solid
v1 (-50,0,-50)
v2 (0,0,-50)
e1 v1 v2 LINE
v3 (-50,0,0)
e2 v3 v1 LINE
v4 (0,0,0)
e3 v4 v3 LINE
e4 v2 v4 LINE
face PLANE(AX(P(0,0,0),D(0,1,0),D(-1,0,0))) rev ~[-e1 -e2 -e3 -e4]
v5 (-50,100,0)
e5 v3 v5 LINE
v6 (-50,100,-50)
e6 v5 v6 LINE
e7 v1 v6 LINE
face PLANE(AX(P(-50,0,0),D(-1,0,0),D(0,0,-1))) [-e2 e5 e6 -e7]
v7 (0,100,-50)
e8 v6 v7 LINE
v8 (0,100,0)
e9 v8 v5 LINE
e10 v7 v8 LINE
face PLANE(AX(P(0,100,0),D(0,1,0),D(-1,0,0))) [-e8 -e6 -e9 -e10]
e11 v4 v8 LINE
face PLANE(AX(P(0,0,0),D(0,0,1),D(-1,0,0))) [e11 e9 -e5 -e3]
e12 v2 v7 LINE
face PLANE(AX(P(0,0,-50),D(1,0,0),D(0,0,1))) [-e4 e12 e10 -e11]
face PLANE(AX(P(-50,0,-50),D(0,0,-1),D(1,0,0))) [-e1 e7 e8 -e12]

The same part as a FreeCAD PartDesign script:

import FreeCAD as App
import Part
import Sketcher
Q = App.Units.Quantity


def add_polygon(sketch, points):
    """Adds a closed chain of lines whose ends are joined by coincident constraints."""
    first, n = sketch.GeometryCount, len(points)
    for a, b in zip(points, points[1:] + points[:1]):
        sketch.addGeometry(Part.LineSegment(App.Vector(*a, 0), App.Vector(*b, 0)), False)
    for i in range(n):
        sketch.addConstraint(Sketcher.Constraint("Coincident", first + i, 2, first + (i + 1) % n, 1))

doc = App.newDocument("Part")
body = doc.addObject("PartDesign::Body", "Body")

# Sketch on XZ plane
sketch1 = body.newObject("Sketcher::SketchObject", "Sketch")
sketch1.AttachmentSupport = (doc.getObject("XZ_Plane"), [""])
sketch1.MapMode = "FlatFace"
add_polygon(sketch1, [(-50, 0), (0, 0), (0, -50), (-50, -50)])  # lines 0-3
sketch1.addConstraint([
    Sketcher.Constraint("Horizontal", 0),
    Sketcher.Constraint("Vertical", 1),
    Sketcher.Constraint("Horizontal", 2),
    Sketcher.Constraint("Vertical", 3),
    Sketcher.Constraint("Coincident", 0, 2, -1, 1),
    Sketcher.Constraint("Equal", 2, 1),
    Sketcher.Constraint("DistanceX", 0, 1, 0, 2, Q("1.9685 in")),
])
pad1 = body.newObject("PartDesign::Pad", "Pad")
pad1.Profile = sketch1
pad1.Length = Q("3.9370079 in")
pad1.Reversed = True

doc.recompute()
